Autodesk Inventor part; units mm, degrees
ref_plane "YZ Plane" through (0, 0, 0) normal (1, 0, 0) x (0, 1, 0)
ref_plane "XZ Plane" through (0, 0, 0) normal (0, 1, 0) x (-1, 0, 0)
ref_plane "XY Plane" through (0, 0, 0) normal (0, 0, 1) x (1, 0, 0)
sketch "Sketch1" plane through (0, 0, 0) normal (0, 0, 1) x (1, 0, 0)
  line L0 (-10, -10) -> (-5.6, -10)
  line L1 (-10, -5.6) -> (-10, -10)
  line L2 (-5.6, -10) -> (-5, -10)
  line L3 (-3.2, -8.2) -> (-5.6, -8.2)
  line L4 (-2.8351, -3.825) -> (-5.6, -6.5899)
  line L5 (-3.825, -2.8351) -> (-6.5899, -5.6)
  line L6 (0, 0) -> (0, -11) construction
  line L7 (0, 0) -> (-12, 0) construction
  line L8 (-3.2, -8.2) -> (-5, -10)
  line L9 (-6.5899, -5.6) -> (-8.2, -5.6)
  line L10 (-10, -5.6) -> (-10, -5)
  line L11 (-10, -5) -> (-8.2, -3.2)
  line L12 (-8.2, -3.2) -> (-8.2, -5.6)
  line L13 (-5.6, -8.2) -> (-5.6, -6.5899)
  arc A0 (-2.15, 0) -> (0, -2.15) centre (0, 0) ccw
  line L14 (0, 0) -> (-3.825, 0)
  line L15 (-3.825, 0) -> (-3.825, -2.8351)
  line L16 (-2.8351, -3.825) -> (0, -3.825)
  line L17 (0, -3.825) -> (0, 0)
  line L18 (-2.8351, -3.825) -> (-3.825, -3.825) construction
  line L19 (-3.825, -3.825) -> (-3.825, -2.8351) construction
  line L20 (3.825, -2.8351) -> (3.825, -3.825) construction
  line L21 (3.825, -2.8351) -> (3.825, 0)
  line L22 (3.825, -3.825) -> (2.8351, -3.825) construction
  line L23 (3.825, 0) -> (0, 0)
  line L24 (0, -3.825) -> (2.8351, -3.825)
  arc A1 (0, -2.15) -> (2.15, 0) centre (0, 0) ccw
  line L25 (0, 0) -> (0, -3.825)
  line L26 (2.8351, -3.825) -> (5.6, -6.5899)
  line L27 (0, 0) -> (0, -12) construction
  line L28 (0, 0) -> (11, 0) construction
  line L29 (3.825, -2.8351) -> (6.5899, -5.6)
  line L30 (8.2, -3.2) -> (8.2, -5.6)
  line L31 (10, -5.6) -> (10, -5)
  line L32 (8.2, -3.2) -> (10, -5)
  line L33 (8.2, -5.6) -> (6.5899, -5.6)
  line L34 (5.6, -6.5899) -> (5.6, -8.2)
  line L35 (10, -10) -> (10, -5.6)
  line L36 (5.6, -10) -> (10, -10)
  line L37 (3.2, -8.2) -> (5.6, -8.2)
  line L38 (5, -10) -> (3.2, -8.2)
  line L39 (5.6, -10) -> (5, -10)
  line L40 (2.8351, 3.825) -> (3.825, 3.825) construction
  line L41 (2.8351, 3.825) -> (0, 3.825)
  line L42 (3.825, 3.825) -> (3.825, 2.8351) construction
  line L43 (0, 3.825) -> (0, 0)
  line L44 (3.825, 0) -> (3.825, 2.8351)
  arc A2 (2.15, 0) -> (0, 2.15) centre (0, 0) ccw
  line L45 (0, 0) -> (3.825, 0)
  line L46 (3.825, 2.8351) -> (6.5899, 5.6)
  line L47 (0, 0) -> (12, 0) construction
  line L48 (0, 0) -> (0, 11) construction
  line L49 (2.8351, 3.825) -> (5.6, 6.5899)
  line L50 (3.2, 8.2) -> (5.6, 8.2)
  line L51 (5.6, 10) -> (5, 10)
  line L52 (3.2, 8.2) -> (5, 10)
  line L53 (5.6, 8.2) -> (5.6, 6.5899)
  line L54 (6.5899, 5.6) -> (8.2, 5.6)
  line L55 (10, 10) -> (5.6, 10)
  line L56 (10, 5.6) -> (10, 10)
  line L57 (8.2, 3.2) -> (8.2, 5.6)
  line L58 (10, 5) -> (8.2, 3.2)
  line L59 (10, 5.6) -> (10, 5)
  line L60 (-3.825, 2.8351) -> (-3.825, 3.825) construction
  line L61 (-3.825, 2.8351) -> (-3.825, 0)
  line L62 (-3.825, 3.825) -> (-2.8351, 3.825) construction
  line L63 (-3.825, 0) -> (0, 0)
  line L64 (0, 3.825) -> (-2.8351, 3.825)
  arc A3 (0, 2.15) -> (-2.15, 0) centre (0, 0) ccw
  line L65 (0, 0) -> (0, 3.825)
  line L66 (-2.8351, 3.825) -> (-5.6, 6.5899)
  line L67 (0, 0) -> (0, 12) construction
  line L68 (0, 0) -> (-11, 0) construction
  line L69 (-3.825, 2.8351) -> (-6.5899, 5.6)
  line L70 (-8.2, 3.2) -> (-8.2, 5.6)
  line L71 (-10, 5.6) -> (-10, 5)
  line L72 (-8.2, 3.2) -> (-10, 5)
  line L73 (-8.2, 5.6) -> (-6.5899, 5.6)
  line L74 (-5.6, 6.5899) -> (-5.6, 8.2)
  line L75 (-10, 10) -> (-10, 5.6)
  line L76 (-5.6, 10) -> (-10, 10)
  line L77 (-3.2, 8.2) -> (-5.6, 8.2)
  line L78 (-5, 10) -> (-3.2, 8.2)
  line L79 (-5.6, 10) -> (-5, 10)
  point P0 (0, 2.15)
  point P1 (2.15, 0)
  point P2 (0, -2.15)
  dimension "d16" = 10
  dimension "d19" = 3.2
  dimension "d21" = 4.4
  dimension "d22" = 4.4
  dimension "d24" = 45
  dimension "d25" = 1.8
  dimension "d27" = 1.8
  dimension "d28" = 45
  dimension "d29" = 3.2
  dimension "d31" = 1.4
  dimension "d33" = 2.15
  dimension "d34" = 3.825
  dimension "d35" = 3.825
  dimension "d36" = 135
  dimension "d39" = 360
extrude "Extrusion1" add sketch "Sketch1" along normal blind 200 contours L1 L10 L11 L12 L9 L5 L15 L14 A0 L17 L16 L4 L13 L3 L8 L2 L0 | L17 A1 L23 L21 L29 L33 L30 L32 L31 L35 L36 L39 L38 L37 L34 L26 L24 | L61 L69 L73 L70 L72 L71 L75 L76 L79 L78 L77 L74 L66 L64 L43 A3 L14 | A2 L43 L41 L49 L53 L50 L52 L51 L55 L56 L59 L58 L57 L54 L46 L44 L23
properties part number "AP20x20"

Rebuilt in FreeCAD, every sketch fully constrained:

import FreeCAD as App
import Part
import Sketcher
Q = App.Units.Quantity


def add_polygon(sketch, points):
    """Adds a closed chain of lines whose ends are joined by coincident constraints."""
    first, n = sketch.GeometryCount, len(points)
    for a, b in zip(points, points[1:] + points[:1]):
        sketch.addGeometry(Part.LineSegment(App.Vector(*a, 0), App.Vector(*b, 0)), False)
    for i in range(n):
        sketch.addConstraint(Sketcher.Constraint("Coincident", first + i, 2, first + (i + 1) % n, 1))

doc = App.newDocument("Part")
body = doc.addObject("PartDesign::Body", "Body")

# Sketch on XY plane
sketch1 = body.newObject("Sketcher::SketchObject", "Sketch")
sketch1.AttachmentSupport = (doc.getObject("XY_Plane"), [""])
sketch1.MapMode = "FlatFace"
add_polygon(sketch1, [(-10, -10), (-5, -10), (-3.2, -8.2), (-5.6, -8.2), (-5.6, -6.6), (-2.8, -3.8), (2.8, -3.8), (5.6, -6.6), (5.6, -8.2), (3.2, -8.2), (5, -10), (10, -10), (10, -5), (8.2, -3.2), (8.2, -5.6), (6.6, -5.6), (3.8, -2.8), (3.8, 2.8), (6.6, 5.6), (8.2, 5.6), (8.2, 3.2), (10, 5), (10, 10), (5, 10), (3.2, 8.2), (5.6, 8.2), (5.6, 6.6), (2.8, 3.8), (-2.8, 3.8), (-5.6, 6.6), (-5.6, 8.2), (-3.2, 8.2), (-5, 10), (-10, 10), (-10, 5), (-8.2, 3.2), (-8.2, 5.6), (-6.6, 5.6), (-3.8, 2.8), (-3.8, -2.8), (-6.6, -5.6), (-8.2, -5.6), (-8.2, -3.2), (-10, -5)])  # lines 0-43
sketch1.addGeometry(Part.Circle(App.Vector(0, 0, 0), App.Vector(0, 0, 1), 2.1), False)  # 44
sketch1.addConstraint(Sketcher.Constraint("Horizontal", 0))
sketch1.addConstraint(Sketcher.Constraint("Horizontal", 2))
sketch1.addConstraint(Sketcher.Constraint("Vertical", 3))
sketch1.addConstraint(Sketcher.Constraint("Horizontal", 5))
sketch1.addConstraint(Sketcher.Constraint("Vertical", 7))
sketch1.addConstraint(Sketcher.Constraint("Horizontal", 8))
sketch1.addConstraint(Sketcher.Constraint("Horizontal", 10))
sketch1.addConstraint(Sketcher.Constraint("Vertical", 11))
sketch1.addConstraint(Sketcher.Constraint("Vertical", 13))
sketch1.addConstraint(Sketcher.Constraint("Horizontal", 14))
sketch1.addConstraint(Sketcher.Constraint("Vertical", 16))
sketch1.addConstraint(Sketcher.Constraint("Horizontal", 18))
sketch1.addConstraint(Sketcher.Constraint("Vertical", 19))
sketch1.addConstraint(Sketcher.Constraint("Vertical", 21))
sketch1.addConstraint(Sketcher.Constraint("Horizontal", 22))
sketch1.addConstraint(Sketcher.Constraint("Horizontal", 24))
sketch1.addConstraint(Sketcher.Constraint("Vertical", 25))
sketch1.addConstraint(Sketcher.Constraint("Horizontal", 27))
sketch1.addConstraint(Sketcher.Constraint("Vertical", 29))
sketch1.addConstraint(Sketcher.Constraint("Horizontal", 30))
sketch1.addConstraint(Sketcher.Constraint("Horizontal", 32))
sketch1.addConstraint(Sketcher.Constraint("Vertical", 33))
sketch1.addConstraint(Sketcher.Constraint("Vertical", 35))
sketch1.addConstraint(Sketcher.Constraint("Horizontal", 36))
sketch1.addConstraint(Sketcher.Constraint("Vertical", 38))
sketch1.addConstraint(Sketcher.Constraint("Horizontal", 40))
sketch1.addConstraint(Sketcher.Constraint("Vertical", 41))
sketch1.addConstraint(Sketcher.Constraint("Vertical", 43))
sketch1.addConstraint(Sketcher.Constraint("Coincident", 44, 3, -1, 1))
sketch1.addConstraint(Sketcher.Constraint("Symmetric", 0, 2, 22, 2, -1, 1))
sketch1.addConstraint(Sketcher.Constraint("Symmetric", 1, 2, 23, 2, -1, 1))
sketch1.addConstraint(Sketcher.Constraint("Symmetric", 3, 2, 25, 2, -1, 1))
sketch1.addConstraint(Sketcher.Constraint("Symmetric", 4, 2, 26, 2, -1, 1))
sketch1.addConstraint(Sketcher.Constraint("Symmetric", 6, 2, 28, 2, -1, 1))
sketch1.addConstraint(Sketcher.Constraint("Symmetric", 8, 2, 30, 2, -1, 1))
sketch1.addConstraint(Sketcher.Constraint("Symmetric", 9, 2, 31, 2, -1, 1))
sketch1.addConstraint(Sketcher.Constraint("Symmetric", 11, 2, 33, 2, -1, 1))
sketch1.addConstraint(Sketcher.Constraint("Symmetric", 12, 2, 34, 2, -1, 1))
sketch1.addConstraint(Sketcher.Constraint("Symmetric", 14, 2, 36, 2, -1, 1))
sketch1.addConstraint(Sketcher.Constraint("Symmetric", 15, 2, 37, 2, -1, 1))
sketch1.addConstraint(Sketcher.Constraint("Symmetric", 17, 2, 39, 2, -1, 1))
sketch1.addConstraint(Sketcher.Constraint("Symmetric", 19, 2, 41, 2, -1, 1))
sketch1.addConstraint(Sketcher.Constraint("Symmetric", 20, 2, 42, 2, -1, 1))
sketch1.addConstraint(Sketcher.Constraint("Symmetric", 3, 2, 6, 2, -2))
sketch1.addConstraint(Sketcher.Constraint("Symmetric", 1, 2, 8, 2, -2))
sketch1.addConstraint(Sketcher.Constraint("Symmetric", 0, 2, 9, 2, -2))
sketch1.addConstraint(Sketcher.Constraint("Symmetric", 20, 2, 33, 2, -2))
sketch1.addConstraint(Sketcher.Constraint("Symmetric", 19, 2, 34, 2, -2))
sketch1.addConstraint(Sketcher.Constraint("Symmetric", 17, 2, 36, 2, -2))
sketch1.addConstraint(Sketcher.Constraint("Parallel", 1, 4))
sketch1.addConstraint(Sketcher.Constraint("Perpendicular", 4, 6))
sketch1.addConstraint(Sketcher.Constraint("Parallel", 6, 9))
sketch1.addConstraint(Sketcher.Constraint("Parallel", 9, 12))
sketch1.addConstraint(Sketcher.Constraint("Parallel", 12, 15))
sketch1.addConstraint(Sketcher.Constraint("Perpendicular", 15, 17))
sketch1.addConstraint(Sketcher.Constraint("Perpendicular", 26, 28))
sketch1.addConstraint(Sketcher.Constraint("Perpendicular", 37, 39))
sketch1.addConstraint(Sketcher.Constraint("Equal", 40, 3))
sketch1.addConstraint(Sketcher.Constraint("Equal", 32, 11))
sketch1.addConstraint(Sketcher.Constraint("Equal", 30, 13))
sketch1.addConstraint(Sketcher.Constraint("Equal", 27, 16))
sketch1.addConstraint(Sketcher.Constraint("Equal", 9, 12))
sketch1.addConstraint(Sketcher.Constraint("Equal", 6, 15))
sketch1.addConstraint(Sketcher.Constraint("Diameter", 44, Q("4.3 mm")))
sketch1.addConstraint(Sketcher.Constraint("DistanceY", 0, 2, -1, 1, Q("10 mm")))
sketch1.addConstraint(Sketcher.Constraint("DistanceX", 1, 2, -1, 1, Q("3.2 mm")))
sketch1.addConstraint(Sketcher.Constraint("DistanceX", 0, 2, 1, 2, Q("1.8 mm")))
sketch1.addConstraint(Sketcher.Constraint("DistanceX", 7, 2, 10, 2, Q("4.4 mm")))
sketch1.addConstraint(Sketcher.Constraint("DistanceY", 4, 2, -1, 1, Q("3.825 mm")))
sketch1.addConstraint(Sketcher.Constraint("DistanceX", 14, 2, 14, 1, Q("1.61 mm")))
pad1 = body.newObject("PartDesign::Pad", "Pad")
pad1.Profile = sketch1
pad1.Length = 200

doc.recompute()
